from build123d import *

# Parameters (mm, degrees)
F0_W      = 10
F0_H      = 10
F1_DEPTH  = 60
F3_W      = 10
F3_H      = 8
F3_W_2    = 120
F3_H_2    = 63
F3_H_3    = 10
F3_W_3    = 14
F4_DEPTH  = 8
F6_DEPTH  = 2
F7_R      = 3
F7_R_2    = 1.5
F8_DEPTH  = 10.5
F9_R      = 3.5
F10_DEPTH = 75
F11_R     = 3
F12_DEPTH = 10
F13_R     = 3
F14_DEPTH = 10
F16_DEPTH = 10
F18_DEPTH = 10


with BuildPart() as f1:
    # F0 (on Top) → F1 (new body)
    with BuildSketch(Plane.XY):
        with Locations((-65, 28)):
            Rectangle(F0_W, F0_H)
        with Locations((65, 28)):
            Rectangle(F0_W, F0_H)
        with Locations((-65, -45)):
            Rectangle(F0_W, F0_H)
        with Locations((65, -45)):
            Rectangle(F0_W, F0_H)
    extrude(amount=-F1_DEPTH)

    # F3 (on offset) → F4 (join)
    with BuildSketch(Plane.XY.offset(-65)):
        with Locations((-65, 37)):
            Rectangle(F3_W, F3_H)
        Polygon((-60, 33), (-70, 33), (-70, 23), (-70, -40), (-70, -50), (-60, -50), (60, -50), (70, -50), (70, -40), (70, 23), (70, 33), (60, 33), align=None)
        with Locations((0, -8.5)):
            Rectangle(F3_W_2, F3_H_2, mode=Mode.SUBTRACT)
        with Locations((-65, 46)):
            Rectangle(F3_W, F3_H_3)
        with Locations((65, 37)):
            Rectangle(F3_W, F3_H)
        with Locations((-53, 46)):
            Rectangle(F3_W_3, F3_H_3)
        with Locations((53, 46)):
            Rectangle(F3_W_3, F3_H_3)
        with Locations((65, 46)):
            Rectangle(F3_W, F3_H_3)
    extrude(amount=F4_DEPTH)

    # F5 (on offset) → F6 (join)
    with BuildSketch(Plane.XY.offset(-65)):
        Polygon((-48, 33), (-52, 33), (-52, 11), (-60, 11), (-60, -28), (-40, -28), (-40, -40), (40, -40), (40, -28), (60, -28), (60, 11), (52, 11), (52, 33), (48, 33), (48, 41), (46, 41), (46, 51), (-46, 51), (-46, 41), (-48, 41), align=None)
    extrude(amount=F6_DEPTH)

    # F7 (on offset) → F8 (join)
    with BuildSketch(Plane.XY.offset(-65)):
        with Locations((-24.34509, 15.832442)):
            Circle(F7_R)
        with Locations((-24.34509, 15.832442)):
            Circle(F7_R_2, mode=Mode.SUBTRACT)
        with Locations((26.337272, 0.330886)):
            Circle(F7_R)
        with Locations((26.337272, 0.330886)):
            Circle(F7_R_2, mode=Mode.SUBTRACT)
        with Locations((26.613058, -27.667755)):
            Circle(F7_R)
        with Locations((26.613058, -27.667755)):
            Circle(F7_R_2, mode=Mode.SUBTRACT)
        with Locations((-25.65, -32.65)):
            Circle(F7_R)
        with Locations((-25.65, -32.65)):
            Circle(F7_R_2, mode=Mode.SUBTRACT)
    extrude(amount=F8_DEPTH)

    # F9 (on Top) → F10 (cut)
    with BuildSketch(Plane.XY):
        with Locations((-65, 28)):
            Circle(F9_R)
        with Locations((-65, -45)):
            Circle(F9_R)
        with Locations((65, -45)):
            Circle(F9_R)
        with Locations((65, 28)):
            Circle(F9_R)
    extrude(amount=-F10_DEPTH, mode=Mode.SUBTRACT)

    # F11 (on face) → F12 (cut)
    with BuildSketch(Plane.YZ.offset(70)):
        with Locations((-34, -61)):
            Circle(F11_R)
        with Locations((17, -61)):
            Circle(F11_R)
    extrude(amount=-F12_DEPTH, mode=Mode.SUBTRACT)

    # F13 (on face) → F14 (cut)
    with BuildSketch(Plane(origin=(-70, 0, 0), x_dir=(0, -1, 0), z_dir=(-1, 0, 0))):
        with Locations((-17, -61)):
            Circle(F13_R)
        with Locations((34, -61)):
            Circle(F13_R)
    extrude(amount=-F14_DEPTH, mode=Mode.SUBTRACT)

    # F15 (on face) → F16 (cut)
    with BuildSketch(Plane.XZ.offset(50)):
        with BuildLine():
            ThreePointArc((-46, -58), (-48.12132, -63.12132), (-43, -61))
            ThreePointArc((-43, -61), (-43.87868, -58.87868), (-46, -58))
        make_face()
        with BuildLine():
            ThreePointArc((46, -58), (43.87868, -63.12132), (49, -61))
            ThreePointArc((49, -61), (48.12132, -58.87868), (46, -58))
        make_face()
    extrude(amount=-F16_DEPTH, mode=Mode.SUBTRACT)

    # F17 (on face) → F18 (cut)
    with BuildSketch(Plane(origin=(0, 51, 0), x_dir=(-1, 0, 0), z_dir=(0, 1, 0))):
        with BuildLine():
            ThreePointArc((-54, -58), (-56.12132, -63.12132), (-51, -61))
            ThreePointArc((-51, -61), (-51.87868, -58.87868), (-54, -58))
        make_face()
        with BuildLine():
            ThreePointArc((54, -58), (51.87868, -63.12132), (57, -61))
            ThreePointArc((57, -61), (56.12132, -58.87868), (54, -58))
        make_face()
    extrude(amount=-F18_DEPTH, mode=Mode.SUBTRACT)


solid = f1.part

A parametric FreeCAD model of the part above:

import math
import FreeCAD as App
import Part
import Sketcher

V = App.Vector


def add_polygon(sketch, points):
    """Adds a closed chain of lines whose ends are joined by coincident constraints."""
    first, n = sketch.GeometryCount, len(points)
    for a, b in zip(points, points[1:] + points[:1]):
        sketch.addGeometry(Part.LineSegment(App.Vector(*a, 0), App.Vector(*b, 0)), False)
    for i in range(n):
        sketch.addConstraint(Sketcher.Constraint("Coincident", first + i, 2, first + (i + 1) % n, 1))

doc = App.newDocument("Part")
body = doc.addObject("PartDesign::Body", "Body")
body.AllowCompound = True

# Sketch on XY plane
sketch1 = doc.addObject("Sketcher::SketchObject", "Sketch")
body.addObject(sketch1)
sketch1.AttachmentSupport = (doc.XY_Plane, [""])
sketch1.MapMode = "FlatFace"
add_polygon(sketch1, [(-70, 33), (-70, 23), (-60, 23), (-60, 33)])  # lines 0-3
add_polygon(sketch1, [(60, 33), (60, 23), (70, 23), (70, 33)])  # lines 4-7
add_polygon(sketch1, [(-70, -40), (-70, -50), (-60, -50), (-60, -40)])  # lines 8-11
add_polygon(sketch1, [(60, -40), (60, -50), (70, -50), (70, -40)])  # lines 12-15
sketch1.addConstraint(Sketcher.Constraint("Vertical", 0))
sketch1.addConstraint(Sketcher.Constraint("Horizontal", 1))
sketch1.addConstraint(Sketcher.Constraint("Vertical", 2))
sketch1.addConstraint(Sketcher.Constraint("Horizontal", 3))
sketch1.addConstraint(Sketcher.Constraint("Vertical", 4))
sketch1.addConstraint(Sketcher.Constraint("Horizontal", 5))
sketch1.addConstraint(Sketcher.Constraint("Vertical", 6))
sketch1.addConstraint(Sketcher.Constraint("Horizontal", 7))
sketch1.addConstraint(Sketcher.Constraint("Vertical", 8))
sketch1.addConstraint(Sketcher.Constraint("Horizontal", 9))
sketch1.addConstraint(Sketcher.Constraint("Vertical", 10))
sketch1.addConstraint(Sketcher.Constraint("Horizontal", 11))
sketch1.addConstraint(Sketcher.Constraint("Vertical", 12))
sketch1.addConstraint(Sketcher.Constraint("Horizontal", 13))
sketch1.addConstraint(Sketcher.Constraint("Vertical", 14))
sketch1.addConstraint(Sketcher.Constraint("Horizontal", 15))
sketch1.addConstraint(Sketcher.Constraint("Symmetric", 1, 2, 4, 2, -2))
sketch1.addConstraint(Sketcher.Constraint("Symmetric", 3, 2, 6, 2, -2))
sketch1.addConstraint(Sketcher.Constraint("Symmetric", 9, 2, 12, 2, -2))
sketch1.addConstraint(Sketcher.Constraint("Symmetric", 11, 2, 14, 2, -2))
sketch1.addConstraint(Sketcher.Constraint("Vertical", 3, 2, 8, 2))
sketch1.addConstraint(Sketcher.Constraint("Vertical", 2, 2, 9, 2))
sketch1.addConstraint(Sketcher.Constraint("Equal", 15, 0))
sketch1.addConstraint(Sketcher.Constraint("Equal", 6, 8))
sketch1.addConstraint(Sketcher.Constraint("DistanceX", 1, 1, 1, 2, 10.0))
sketch1.addConstraint(Sketcher.Constraint("DistanceX", 0, 2, -1, 1, 70.0))
sketch1.addConstraint(Sketcher.Constraint("DistanceY", -1, 1, 0, 2, 23.0))
sketch1.addConstraint(Sketcher.Constraint("DistanceY", 8, 2, -1, 1, 50.0))
pad1 = doc.addObject("PartDesign::Pad", "Pad")
body.addObject(pad1)
pad1.Profile = sketch1
pad1.Length = 60
pad1.Reversed = True

# Sketch on XY plane
sketch2 = doc.addObject("Sketcher::SketchObject", "Sketch001")
body.addObject(sketch2)
sketch2.AttachmentSupport = (doc.XY_Plane, [""])
sketch2.MapMode = "FlatFace"
sketch2.AttachmentOffset = App.Placement(V(0, 0, -65), App.Rotation())
add_polygon(sketch2, [(-70, -50), (70, -50), (70, 51), (46, 51), (46, 41), (60, 41), (60, 33), (-60, 33), (-60, 41), (-46, 41), (-46, 51), (-70, 51)])  # lines 0-11
add_polygon(sketch2, [(60, -40), (-60, -40), (-60, 23), (60, 23)])  # lines 12-15
sketch2.addConstraint(Sketcher.Constraint("Horizontal", 0))
sketch2.addConstraint(Sketcher.Constraint("Vertical", 1))
sketch2.addConstraint(Sketcher.Constraint("Horizontal", 2))
sketch2.addConstraint(Sketcher.Constraint("Vertical", 3))
sketch2.addConstraint(Sketcher.Constraint("Horizontal", 4))
sketch2.addConstraint(Sketcher.Constraint("Vertical", 5))
sketch2.addConstraint(Sketcher.Constraint("Horizontal", 6))
sketch2.addConstraint(Sketcher.Constraint("Vertical", 7))
sketch2.addConstraint(Sketcher.Constraint("Horizontal", 8))
sketch2.addConstraint(Sketcher.Constraint("Vertical", 9))
sketch2.addConstraint(Sketcher.Constraint("Horizontal", 10))
sketch2.addConstraint(Sketcher.Constraint("Vertical", 11))
sketch2.addConstraint(Sketcher.Constraint("Horizontal", 12))
sketch2.addConstraint(Sketcher.Constraint("Vertical", 13))
sketch2.addConstraint(Sketcher.Constraint("Horizontal", 14))
sketch2.addConstraint(Sketcher.Constraint("Vertical", 15))
sketch2.addConstraint(Sketcher.Constraint("Symmetric", 4, 2, 7, 2, -2))
sketch2.addConstraint(Sketcher.Constraint("Symmetric", 2, 2, 9, 2, -2))
sketch2.addConstraint(Sketcher.Constraint("Vertical", 7, 2, 12, 2))
sketch2.addConstraint(Sketcher.Constraint("Vertical", 5, 2, 14, 2))
sketch2.addConstraint(Sketcher.Constraint("Equal", 2, 10))
sketch2.addConstraint(Sketcher.Constraint("DistanceX", 0, 1, 0, 2, 140.0))
sketch2.addConstraint(Sketcher.Constraint("DistanceX", 2, 2, 2, 1, 24.0))
sketch2.addConstraint(Sketcher.Constraint("DistanceX", 4, 1, 4, 2, 14.0))
sketch2.addConstraint(Sketcher.Constraint("DistanceY", 1, 1, 1, 2, 101.0))
sketch2.addConstraint(Sketcher.Constraint("DistanceY", 3, 2, 3, 1, 10.0))
sketch2.addConstraint(Sketcher.Constraint("DistanceY", 5, 2, 5, 1, 8.0))
sketch2.addConstraint(Sketcher.Constraint("DistanceY", 13, 1, 13, 2, 63.0))
sketch2.addConstraint(Sketcher.Constraint("DistanceY", 0, 2, -1, 1, 50.0))
sketch2.addConstraint(Sketcher.Constraint("DistanceY", 12, 2, -1, 1, 40.0))
pad2 = doc.addObject("PartDesign::Pad", "Pad001")
body.addObject(pad2)
pad2.Profile = sketch2
pad2.Length = 8

# Sketch on XY plane
sketch3 = doc.addObject("Sketcher::SketchObject", "Sketch002")
body.addObject(sketch3)
sketch3.AttachmentSupport = (doc.XY_Plane, [""])
sketch3.MapMode = "FlatFace"
sketch3.AttachmentOffset = App.Placement(V(0, 0, -65), App.Rotation())
add_polygon(sketch3, [(-48, 33), (-52, 33), (-52, 11), (-60, 11), (-60, -28), (-40, -28), (-40, -40), (40, -40), (40, -28), (60, -28), (60, 11), (52, 11), (52, 33), (48, 33), (48, 41), (46, 41), (46, 51), (-46, 51), (-46, 41), (-48, 41)])  # lines 0-19
sketch3.addConstraint(Sketcher.Constraint("Horizontal", 0))
sketch3.addConstraint(Sketcher.Constraint("Vertical", 1))
sketch3.addConstraint(Sketcher.Constraint("Horizontal", 2))
sketch3.addConstraint(Sketcher.Constraint("Vertical", 3))
sketch3.addConstraint(Sketcher.Constraint("Horizontal", 4))
sketch3.addConstraint(Sketcher.Constraint("Vertical", 5))
sketch3.addConstraint(Sketcher.Constraint("Horizontal", 6))
sketch3.addConstraint(Sketcher.Constraint("Vertical", 7))
sketch3.addConstraint(Sketcher.Constraint("Horizontal", 8))
sketch3.addConstraint(Sketcher.Constraint("Vertical", 9))
sketch3.addConstraint(Sketcher.Constraint("Horizontal", 10))
sketch3.addConstraint(Sketcher.Constraint("Vertical", 11))
sketch3.addConstraint(Sketcher.Constraint("Horizontal", 12))
sketch3.addConstraint(Sketcher.Constraint("Vertical", 13))
sketch3.addConstraint(Sketcher.Constraint("Horizontal", 14))
sketch3.addConstraint(Sketcher.Constraint("Vertical", 15))
sketch3.addConstraint(Sketcher.Constraint("Horizontal", 16))
sketch3.addConstraint(Sketcher.Constraint("Vertical", 17))
sketch3.addConstraint(Sketcher.Constraint("Horizontal", 18))
sketch3.addConstraint(Sketcher.Constraint("Vertical", 19))
sketch3.addConstraint(Sketcher.Constraint("Symmetric", 4, 2, 7, 2, -2))
sketch3.addConstraint(Sketcher.Constraint("Symmetric", 2, 2, 9, 2, -2))
sketch3.addConstraint(Sketcher.Constraint("Symmetric", 0, 2, 11, 2, -2))
sketch3.addConstraint(Sketcher.Constraint("Symmetric", 14, 2, 17, 2, -2))
sketch3.addConstraint(Sketcher.Constraint("Equal", 0, 12))
sketch3.addConstraint(Sketcher.Constraint("Equal", 10, 13))
sketch3.addConstraint(Sketcher.Constraint("DistanceX", 0, 2, 0, 1, 4.0))
sketch3.addConstraint(Sketcher.Constraint("DistanceX", 2, 2, 2, 1, 8.0))
sketch3.addConstraint(Sketcher.Constraint("DistanceX", 4, 1, 4, 2, 20.0))
sketch3.addConstraint(Sketcher.Constraint("DistanceX", 6, 1, 6, 2, 80.0))
sketch3.addConstraint(Sketcher.Constraint("DistanceX", 14, 2, 14, 1, 2.0))
sketch3.addConstraint(Sketcher.Constraint("DistanceY", 1, 2, 1, 1, 22.0))
sketch3.addConstraint(Sketcher.Constraint("DistanceY", 3, 2, 3, 1, 39.0))
sketch3.addConstraint(Sketcher.Constraint("DistanceY", 5, 2, 5, 1, 12.0))
sketch3.addConstraint(Sketcher.Constraint("DistanceY", 15, 1, 15, 2, 10.0))
sketch3.addConstraint(Sketcher.Constraint("DistanceY", -1, 1, 0, 2, 33.0))
pad3 = doc.addObject("PartDesign::Pad", "Pad002")
body.addObject(pad3)
pad3.Profile = sketch3
pad3.Length = 2

# Sketch on XY plane
sketch4 = doc.addObject("Sketcher::SketchObject", "Sketch003")
body.addObject(sketch4)
sketch4.AttachmentSupport = (doc.XY_Plane, [""])
sketch4.MapMode = "FlatFace"
sketch4.AttachmentOffset = App.Placement(V(0, 0, -65), App.Rotation())
sketch4.addGeometry(Part.Circle(V(-24.34509, 15.832442, 0), V(0, 0, 1), 3), False)
sketch4.addGeometry(Part.Circle(V(-24.34509, 15.832442, 0), V(0, 0, 1), 1.5), False)
sketch4.addGeometry(Part.Circle(V(26.337272, 0.330886, 0), V(0, 0, 1), 3), False)
sketch4.addGeometry(Part.Circle(V(26.337272, 0.330886, 0), V(0, 0, 1), 1.5), False)
sketch4.addGeometry(Part.Circle(V(26.613058, -27.667755, 0), V(0, 0, 1), 3), False)
sketch4.addGeometry(Part.Circle(V(26.613058, -27.667755, 0), V(0, 0, 1), 1.5), False)
sketch4.addGeometry(Part.Circle(V(-25.65, -32.65, 0), V(0, 0, 1), 3), False)
sketch4.addGeometry(Part.Circle(V(-25.65, -32.65, 0), V(0, 0, 1), 1.5), False)
sketch4.addConstraint(Sketcher.Constraint("Coincident", 1, 3, 0, 3))
sketch4.addConstraint(Sketcher.Constraint("Coincident", 3, 3, 2, 3))
sketch4.addConstraint(Sketcher.Constraint("Coincident", 5, 3, 4, 3))
sketch4.addConstraint(Sketcher.Constraint("Coincident", 7, 3, 6, 3))
sketch4.addConstraint(Sketcher.Constraint("Equal", 0, 2))
sketch4.addConstraint(Sketcher.Constraint("Equal", 1, 3))
sketch4.addConstraint(Sketcher.Constraint("Equal", 2, 4))
sketch4.addConstraint(Sketcher.Constraint("Equal", 3, 5))
sketch4.addConstraint(Sketcher.Constraint("Equal", 4, 6))
sketch4.addConstraint(Sketcher.Constraint("Equal", 5, 7))
sketch4.addConstraint(Sketcher.Constraint("Diameter", 0, 6.0))
sketch4.addConstraint(Sketcher.Constraint("Diameter", 1, 3.0))
sketch4.addConstraint(Sketcher.Constraint("DistanceX", 6, 3, -1, 1, 25.65))
sketch4.addConstraint(Sketcher.Constraint("DistanceY", 6, 3, -1, 1, 32.65))
sketch4.addConstraint(Sketcher.Constraint("DistanceX", 0, 3, -1, 1, 24.34509))
sketch4.addConstraint(Sketcher.Constraint("DistanceX", -1, 1, 2, 3, 26.337272))
sketch4.addConstraint(Sketcher.Constraint("DistanceY", 4, 3, 2, 3, 27.998641))
sketch4.addConstraint(Sketcher.Constraint("DistanceY", -1, 1, 0, 3, 15.832442))
sketch4.addConstraint(Sketcher.Constraint("DistanceY", -1, 1, 2, 3, 0.330886))
sketch4.addConstraint(Sketcher.Constraint("DistanceX", -1, 1, 4, 3, 26.613058))
pad4 = doc.addObject("PartDesign::Pad", "Pad003")
body.addObject(pad4)
pad4.Profile = sketch4
pad4.Length = 10.5

# Sketch on XY plane
sketch5 = doc.addObject("Sketcher::SketchObject", "Sketch004")
body.addObject(sketch5)
sketch5.AttachmentSupport = (doc.XY_Plane, [""])
sketch5.MapMode = "FlatFace"
sketch5.addGeometry(Part.Circle(V(-65, 28, 0), V(0, 0, 1), 3.5), False)
sketch5.addGeometry(Part.Circle(V(-65, -45, 0), V(0, 0, 1), 3.5), False)
sketch5.addGeometry(Part.Circle(V(65, -45, 0), V(0, 0, 1), 3.5), False)
sketch5.addGeometry(Part.Circle(V(65, 28, 0), V(0, 0, 1), 3.5), False)
sketch5.addConstraint(Sketcher.Constraint("Equal", 0, 1))
sketch5.addConstraint(Sketcher.Constraint("Equal", 1, 2))
sketch5.addConstraint(Sketcher.Constraint("Equal", 2, 3))
sketch5.addConstraint(Sketcher.Constraint("Symmetric", 1, 3, 2, 3, -2))
sketch5.addConstraint(Sketcher.Constraint("Symmetric", 0, 3, 3, 3, -2))
sketch5.addConstraint(Sketcher.Constraint("Vertical", 0, 3, 1, 3))
sketch5.addConstraint(Sketcher.Constraint("Diameter", 0, 7.0))
sketch5.addConstraint(Sketcher.Constraint("DistanceX", 0, 3, -1, 1, 65.0))
sketch5.addConstraint(Sketcher.Constraint("DistanceY", -1, 1, 0, 3, 28.0))
sketch5.addConstraint(Sketcher.Constraint("DistanceY", 1, 3, -1, 1, 45.0))
pocket1 = doc.addObject("PartDesign::Pocket", "Pocket")
body.addObject(pocket1)
pocket1.Profile = sketch5
pocket1.Length = 75

# Sketch on YZ plane
sketch6 = doc.addObject("Sketcher::SketchObject", "Sketch005")
body.addObject(sketch6)
sketch6.AttachmentSupport = (doc.YZ_Plane, [""])
sketch6.MapMode = "FlatFace"
sketch6.AttachmentOffset = App.Placement(V(0, 0, 70), App.Rotation())
sketch6.addGeometry(Part.Circle(V(-34, -61, 0), V(0, 0, 1), 3), False)
sketch6.addGeometry(Part.Circle(V(17, -61, 0), V(0, 0, 1), 3), False)
sketch6.addConstraint(Sketcher.Constraint("Equal", 0, 1))
sketch6.addConstraint(Sketcher.Constraint("Horizontal", 0, 3, 1, 3))
sketch6.addConstraint(Sketcher.Constraint("Diameter", 0, 6.0))
sketch6.addConstraint(Sketcher.Constraint("DistanceX", 0, 3, -1, 1, 34.0))
sketch6.addConstraint(Sketcher.Constraint("DistanceY", 0, 3, -1, 1, 61.0))
sketch6.addConstraint(Sketcher.Constraint("DistanceX", -1, 1, 1, 3, 17.0))
pocket2 = doc.addObject("PartDesign::Pocket", "Pocket001")
body.addObject(pocket2)
pocket2.Profile = sketch6
pocket2.Length = 10

# Sketch on YZ plane
sketch7 = doc.addObject("Sketcher::SketchObject", "Sketch006")
body.addObject(sketch7)
sketch7.AttachmentSupport = (doc.YZ_Plane, [""])
sketch7.MapMode = "FlatFace"
sketch7.AttachmentOffset = App.Placement(V(0, 0, -70), App.Rotation())
sketch7.addGeometry(Part.Circle(V(17, -61, 0), V(0, 0, 1), 3), False)
sketch7.addGeometry(Part.Circle(V(-34, -61, 0), V(0, 0, 1), 3), False)
sketch7.addConstraint(Sketcher.Constraint("Equal", 0, 1))
sketch7.addConstraint(Sketcher.Constraint("Horizontal", 0, 3, 1, 3))
sketch7.addConstraint(Sketcher.Constraint("Diameter", 0, 6.0))
sketch7.addConstraint(Sketcher.Constraint("DistanceX", -1, 1, 0, 3, 17.0))
sketch7.addConstraint(Sketcher.Constraint("DistanceY", 0, 3, -1, 1, 61.0))
sketch7.addConstraint(Sketcher.Constraint("DistanceX", 1, 3, -1, 1, 34.0))
pocket3 = doc.addObject("PartDesign::Pocket", "Pocket002")
body.addObject(pocket3)
pocket3.Profile = sketch7
pocket3.Length = 10
pocket3.Reversed = True

# Sketch on XZ plane
sketch8 = doc.addObject("Sketcher::SketchObject", "Sketch007")
body.addObject(sketch8)
sketch8.AttachmentSupport = (doc.XZ_Plane, [""])
sketch8.MapMode = "FlatFace"
sketch8.AttachmentOffset = App.Placement(V(0, 0, 50), App.Rotation())
sketch8.addGeometry(Part.ArcOfCircle(Part.Circle(V(-46, -61, 0), V(0, 0, 1), 3), math.radians(90.000004), math.radians(359.999996)), False)
sketch8.addGeometry(Part.ArcOfCircle(Part.Circle(V(-46.000001, -61.000001, 0), V(0, 0, 1), 3.000001), math.radians(0.000022), math.radians(89.999978)), False)
sketch8.addGeometry(Part.ArcOfCircle(Part.Circle(V(46, -61, 0), V(0, 0, 1), 3), math.radians(90.000004), math.radians(359.999996)), False)
sketch8.addGeometry(Part.ArcOfCircle(Part.Circle(V(45.999999, -61.000001, 0), V(0, 0, 1), 3.000001), math.radians(0.000022), math.radians(89.999978)), False)
sketch8.addConstraint(Sketcher.Constraint("Tangent", 0, 1, 1, 2))
sketch8.addConstraint(Sketcher.Constraint("Coincident", 1, 1, 0, 2))
sketch8.addConstraint(Sketcher.Constraint("Tangent", 2, 1, 3, 2))
sketch8.addConstraint(Sketcher.Constraint("Coincident", 3, 1, 2, 2))
sketch8.addConstraint(Sketcher.Constraint("Equal", 1, 2))
sketch8.addConstraint(Sketcher.Constraint("Symmetric", 0, 3, 2, 3, -2))
sketch8.addConstraint(Sketcher.Constraint("Horizontal", 3, 3, 1, 1))
sketch8.addConstraint(Sketcher.Constraint("Horizontal", 1, 1, 3, 1))
sketch8.addConstraint(Sketcher.Constraint("Vertical", 1, 3, 0, 1))
sketch8.addConstraint(Sketcher.Constraint("Vertical", 3, 3, 2, 1))
sketch8.addConstraint(Sketcher.Constraint("Radius", 0, 3.0))
sketch8.addConstraint(Sketcher.Constraint("DistanceX", 0, 3, -1, 1, 46.0))
sketch8.addConstraint(Sketcher.Constraint("DistanceY", 0, 3, -1, 1, 61.0))
pocket4 = doc.addObject("PartDesign::Pocket", "Pocket003")
body.addObject(pocket4)
pocket4.Profile = sketch8
pocket4.Length = 10

# Sketch on XZ plane
sketch9 = doc.addObject("Sketcher::SketchObject", "Sketch008")
body.addObject(sketch9)
sketch9.AttachmentSupport = (doc.XZ_Plane, [""])
sketch9.MapMode = "FlatFace"
sketch9.AttachmentOffset = App.Placement(V(0, 0, -51), App.Rotation())
sketch9.addGeometry(Part.ArcOfCircle(Part.Circle(V(54, -61, 0), V(0, 0, 1), 3), math.radians(-179.999996), math.radians(89.999996)), False)
sketch9.addGeometry(Part.ArcOfCircle(Part.Circle(V(54.000001, -61.000001, 0), V(0, 0, 1), 3.000001), math.radians(90.000022), math.radians(179.999978)), False)
sketch9.addGeometry(Part.ArcOfCircle(Part.Circle(V(-54, -61, 0), V(0, 0, 1), 3), math.radians(-179.999996), math.radians(89.999996)), False)
sketch9.addGeometry(Part.ArcOfCircle(Part.Circle(V(-53.999999, -61.000001, 0), V(0, 0, 1), 3.000001), math.radians(90.000022), math.radians(179.999978)), False)
sketch9.addConstraint(Sketcher.Constraint("Tangent", 0, 1, 1, 2))
sketch9.addConstraint(Sketcher.Constraint("Coincident", 1, 1, 0, 2))
sketch9.addConstraint(Sketcher.Constraint("Tangent", 2, 1, 3, 2))
sketch9.addConstraint(Sketcher.Constraint("Coincident", 3, 1, 2, 2))
sketch9.addConstraint(Sketcher.Constraint("Equal", 1, 2))
sketch9.addConstraint(Sketcher.Constraint("Symmetric", 0, 3, 2, 3, -2))
sketch9.addConstraint(Sketcher.Constraint("Horizontal", 3, 3, 0, 1))
sketch9.addConstraint(Sketcher.Constraint("Horizontal", 0, 1, 2, 1))
sketch9.addConstraint(Sketcher.Constraint("Vertical", 0, 3, 1, 1))
sketch9.addConstraint(Sketcher.Constraint("Vertical", 2, 3, 3, 1))
sketch9.addConstraint(Sketcher.Constraint("Radius", 0, 3.0))
sketch9.addConstraint(Sketcher.Constraint("DistanceX", -1, 1, 0, 3, 54.0))
sketch9.addConstraint(Sketcher.Constraint("DistanceY", 0, 3, -1, 1, 61.0))
pocket5 = doc.addObject("PartDesign::Pocket", "Pocket004")
body.addObject(pocket5)
pocket5.Profile = sketch9
pocket5.Length = 10
pocket5.Reversed = True

doc.recompute()
